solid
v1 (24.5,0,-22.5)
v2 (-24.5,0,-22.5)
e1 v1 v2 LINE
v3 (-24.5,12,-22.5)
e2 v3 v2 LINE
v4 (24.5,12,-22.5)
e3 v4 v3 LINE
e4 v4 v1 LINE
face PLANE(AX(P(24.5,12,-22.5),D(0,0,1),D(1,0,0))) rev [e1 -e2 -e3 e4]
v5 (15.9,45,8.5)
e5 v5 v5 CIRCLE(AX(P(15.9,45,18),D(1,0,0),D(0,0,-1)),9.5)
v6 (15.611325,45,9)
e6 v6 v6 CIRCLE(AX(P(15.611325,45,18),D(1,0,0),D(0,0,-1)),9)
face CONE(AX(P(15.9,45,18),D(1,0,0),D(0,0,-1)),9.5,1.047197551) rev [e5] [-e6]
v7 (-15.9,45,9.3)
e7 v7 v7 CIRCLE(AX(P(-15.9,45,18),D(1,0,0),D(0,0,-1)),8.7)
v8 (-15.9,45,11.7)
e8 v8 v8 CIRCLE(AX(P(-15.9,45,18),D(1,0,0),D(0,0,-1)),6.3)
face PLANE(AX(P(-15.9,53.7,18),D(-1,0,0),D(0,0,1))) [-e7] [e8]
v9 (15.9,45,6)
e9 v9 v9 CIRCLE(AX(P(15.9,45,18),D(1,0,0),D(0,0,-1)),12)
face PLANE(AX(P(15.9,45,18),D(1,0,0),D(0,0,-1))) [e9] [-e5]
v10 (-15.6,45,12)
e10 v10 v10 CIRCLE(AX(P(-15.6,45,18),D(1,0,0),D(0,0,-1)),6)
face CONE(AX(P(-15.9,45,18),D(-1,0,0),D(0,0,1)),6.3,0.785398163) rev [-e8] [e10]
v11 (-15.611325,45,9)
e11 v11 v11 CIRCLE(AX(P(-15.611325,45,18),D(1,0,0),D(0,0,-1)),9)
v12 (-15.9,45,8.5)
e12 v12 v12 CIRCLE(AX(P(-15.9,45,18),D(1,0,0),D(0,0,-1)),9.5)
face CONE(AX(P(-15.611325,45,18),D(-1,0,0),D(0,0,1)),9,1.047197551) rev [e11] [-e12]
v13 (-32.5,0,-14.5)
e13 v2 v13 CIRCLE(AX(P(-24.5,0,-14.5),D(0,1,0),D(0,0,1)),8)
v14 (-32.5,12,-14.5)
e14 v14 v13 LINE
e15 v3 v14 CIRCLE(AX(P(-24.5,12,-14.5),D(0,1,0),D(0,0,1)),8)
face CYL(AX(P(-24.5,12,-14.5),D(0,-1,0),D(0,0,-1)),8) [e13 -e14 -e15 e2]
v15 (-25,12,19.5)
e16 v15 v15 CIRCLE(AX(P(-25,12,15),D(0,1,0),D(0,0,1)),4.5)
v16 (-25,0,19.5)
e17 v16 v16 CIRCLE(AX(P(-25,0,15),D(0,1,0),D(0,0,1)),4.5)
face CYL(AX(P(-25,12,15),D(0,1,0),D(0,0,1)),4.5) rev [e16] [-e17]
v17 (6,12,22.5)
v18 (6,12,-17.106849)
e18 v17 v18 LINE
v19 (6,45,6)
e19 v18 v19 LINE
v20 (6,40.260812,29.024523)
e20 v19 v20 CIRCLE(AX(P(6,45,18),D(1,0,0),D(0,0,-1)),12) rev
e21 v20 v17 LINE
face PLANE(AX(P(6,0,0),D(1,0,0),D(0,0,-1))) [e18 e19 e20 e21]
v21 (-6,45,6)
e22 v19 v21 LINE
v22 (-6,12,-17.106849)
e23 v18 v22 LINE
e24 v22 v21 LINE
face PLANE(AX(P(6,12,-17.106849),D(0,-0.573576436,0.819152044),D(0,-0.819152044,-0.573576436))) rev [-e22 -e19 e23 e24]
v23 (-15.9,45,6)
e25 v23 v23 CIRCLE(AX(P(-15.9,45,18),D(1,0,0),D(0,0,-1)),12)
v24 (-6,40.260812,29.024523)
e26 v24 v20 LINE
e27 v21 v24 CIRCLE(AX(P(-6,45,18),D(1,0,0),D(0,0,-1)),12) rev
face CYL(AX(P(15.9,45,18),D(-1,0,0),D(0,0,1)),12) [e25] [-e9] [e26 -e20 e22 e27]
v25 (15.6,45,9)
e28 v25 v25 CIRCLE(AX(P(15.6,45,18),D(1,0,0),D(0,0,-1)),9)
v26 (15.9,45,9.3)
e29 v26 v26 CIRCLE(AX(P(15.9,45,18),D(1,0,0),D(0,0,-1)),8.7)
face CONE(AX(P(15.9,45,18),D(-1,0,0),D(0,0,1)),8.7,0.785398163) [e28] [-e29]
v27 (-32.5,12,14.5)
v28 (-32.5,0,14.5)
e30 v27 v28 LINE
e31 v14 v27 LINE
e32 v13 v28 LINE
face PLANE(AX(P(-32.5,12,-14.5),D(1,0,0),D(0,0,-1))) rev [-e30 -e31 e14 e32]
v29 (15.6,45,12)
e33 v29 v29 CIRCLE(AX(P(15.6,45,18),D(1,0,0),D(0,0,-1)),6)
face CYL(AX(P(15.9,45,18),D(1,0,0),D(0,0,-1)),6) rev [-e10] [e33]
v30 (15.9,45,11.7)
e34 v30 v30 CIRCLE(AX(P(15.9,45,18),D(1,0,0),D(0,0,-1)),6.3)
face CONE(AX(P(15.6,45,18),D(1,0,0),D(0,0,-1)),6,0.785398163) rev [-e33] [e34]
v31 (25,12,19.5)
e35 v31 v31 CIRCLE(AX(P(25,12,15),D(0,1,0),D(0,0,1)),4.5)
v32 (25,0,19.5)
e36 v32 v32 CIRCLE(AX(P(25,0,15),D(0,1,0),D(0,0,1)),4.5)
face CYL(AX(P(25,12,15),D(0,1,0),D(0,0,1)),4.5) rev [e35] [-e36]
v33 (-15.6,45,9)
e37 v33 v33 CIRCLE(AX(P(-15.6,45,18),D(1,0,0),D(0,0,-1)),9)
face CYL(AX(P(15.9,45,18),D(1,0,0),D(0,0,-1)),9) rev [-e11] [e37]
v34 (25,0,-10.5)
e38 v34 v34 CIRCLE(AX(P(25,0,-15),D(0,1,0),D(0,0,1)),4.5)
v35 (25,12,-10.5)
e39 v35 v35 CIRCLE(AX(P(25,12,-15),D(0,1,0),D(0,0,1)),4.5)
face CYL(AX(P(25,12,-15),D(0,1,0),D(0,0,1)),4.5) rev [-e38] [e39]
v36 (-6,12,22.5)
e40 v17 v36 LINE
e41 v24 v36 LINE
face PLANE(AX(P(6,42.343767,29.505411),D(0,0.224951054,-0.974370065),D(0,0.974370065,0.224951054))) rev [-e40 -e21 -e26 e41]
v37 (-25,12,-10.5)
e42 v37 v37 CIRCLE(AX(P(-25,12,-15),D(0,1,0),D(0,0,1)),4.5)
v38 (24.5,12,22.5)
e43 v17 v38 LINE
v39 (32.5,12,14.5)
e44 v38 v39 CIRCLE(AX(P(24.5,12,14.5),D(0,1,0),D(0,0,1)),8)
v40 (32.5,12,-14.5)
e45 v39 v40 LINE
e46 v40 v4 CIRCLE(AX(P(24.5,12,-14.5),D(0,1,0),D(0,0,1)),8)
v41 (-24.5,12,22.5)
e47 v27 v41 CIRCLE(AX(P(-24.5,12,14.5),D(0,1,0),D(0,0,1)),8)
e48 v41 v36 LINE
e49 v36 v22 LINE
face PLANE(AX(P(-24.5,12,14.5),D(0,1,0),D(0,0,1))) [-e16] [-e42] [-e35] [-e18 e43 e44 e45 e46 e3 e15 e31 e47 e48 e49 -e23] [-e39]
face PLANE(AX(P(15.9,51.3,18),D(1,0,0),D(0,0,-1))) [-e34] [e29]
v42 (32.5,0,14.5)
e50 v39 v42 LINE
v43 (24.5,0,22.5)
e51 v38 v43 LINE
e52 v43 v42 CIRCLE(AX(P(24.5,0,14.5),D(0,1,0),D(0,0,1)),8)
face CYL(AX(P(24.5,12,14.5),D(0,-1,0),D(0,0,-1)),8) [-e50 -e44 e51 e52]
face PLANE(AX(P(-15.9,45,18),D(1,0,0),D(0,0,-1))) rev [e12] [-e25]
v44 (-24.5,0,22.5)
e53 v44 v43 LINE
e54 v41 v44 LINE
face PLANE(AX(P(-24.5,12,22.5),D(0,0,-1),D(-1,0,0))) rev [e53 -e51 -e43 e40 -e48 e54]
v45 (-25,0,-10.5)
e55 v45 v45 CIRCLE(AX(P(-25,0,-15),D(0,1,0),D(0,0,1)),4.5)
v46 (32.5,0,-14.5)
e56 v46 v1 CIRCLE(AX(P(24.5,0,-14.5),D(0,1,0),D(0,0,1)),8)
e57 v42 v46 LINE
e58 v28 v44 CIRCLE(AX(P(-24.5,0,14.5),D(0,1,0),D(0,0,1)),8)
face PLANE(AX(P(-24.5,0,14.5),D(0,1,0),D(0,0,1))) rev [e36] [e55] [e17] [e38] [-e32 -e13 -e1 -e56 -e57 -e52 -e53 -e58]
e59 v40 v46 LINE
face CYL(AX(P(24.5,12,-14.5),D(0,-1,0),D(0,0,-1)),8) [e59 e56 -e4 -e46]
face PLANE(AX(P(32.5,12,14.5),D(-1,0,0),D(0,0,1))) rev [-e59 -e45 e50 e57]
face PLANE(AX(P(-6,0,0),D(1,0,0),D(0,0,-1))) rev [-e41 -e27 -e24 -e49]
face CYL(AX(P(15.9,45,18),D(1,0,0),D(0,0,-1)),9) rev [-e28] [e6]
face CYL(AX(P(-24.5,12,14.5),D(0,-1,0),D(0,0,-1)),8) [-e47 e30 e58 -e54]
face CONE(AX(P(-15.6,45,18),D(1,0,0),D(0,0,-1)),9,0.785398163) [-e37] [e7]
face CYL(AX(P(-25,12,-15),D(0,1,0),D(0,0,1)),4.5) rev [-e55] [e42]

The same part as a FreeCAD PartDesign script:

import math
import FreeCAD as App
import Part
import Sketcher

V = App.Vector
Q = App.Units.Quantity


def add_polygon(sketch, points):
    """Adds a closed chain of lines whose ends are joined by coincident constraints."""
    first, n = sketch.GeometryCount, len(points)
    for a, b in zip(points, points[1:] + points[:1]):
        sketch.addGeometry(Part.LineSegment(App.Vector(*a, 0), App.Vector(*b, 0)), False)
    for i in range(n):
        sketch.addConstraint(Sketcher.Constraint("Coincident", first + i, 2, first + (i + 1) % n, 1))

doc = App.newDocument("Part")
body = doc.addObject("PartDesign::Body", "Body")

# Sketch on XZ plane
sketch1 = body.newObject("Sketcher::SketchObject", "Sketch")
sketch1.AttachmentSupport = (doc.getObject("XZ_Plane"), [""])
sketch1.MapMode = "FlatFace"
sketch1.addGeometry(Part.LineSegment(V(-24.5, 22.5, 0), V(24.5, 22.5, 0)), False)
sketch1.addGeometry(Part.ArcOfCircle(Part.Circle(V(24.5, 14.5, 0), V(0, 0, 1), 8), math.radians(0), math.radians(90)), False)
sketch1.addGeometry(Part.LineSegment(V(32.5, 14.5, 0), V(32.5, -14.5, 0)), False)
sketch1.addGeometry(Part.ArcOfCircle(Part.Circle(V(24.5, -14.5, 0), V(0, 0, 1), 8), math.radians(-90), math.radians(0)), False)
sketch1.addGeometry(Part.LineSegment(V(24.5, -22.5, 0), V(-24.5, -22.5, 0)), False)
sketch1.addGeometry(Part.ArcOfCircle(Part.Circle(V(-24.5, -14.5, 0), V(0, 0, 1), 8), math.radians(-180), math.radians(-90)), False)
sketch1.addGeometry(Part.LineSegment(V(-32.5, -14.5, 0), V(-32.5, 14.5, 0)), False)
sketch1.addGeometry(Part.ArcOfCircle(Part.Circle(V(-24.5, 14.5, 0), V(0, 0, 1), 8), math.radians(90), math.radians(180)), False)
sketch1.addConstraint(Sketcher.Constraint("Tangent", 0, 2, 1, 2))
sketch1.addConstraint(Sketcher.Constraint("Tangent", 1, 1, 2, 1))
sketch1.addConstraint(Sketcher.Constraint("Tangent", 2, 2, 3, 2))
sketch1.addConstraint(Sketcher.Constraint("Tangent", 3, 1, 4, 1))
sketch1.addConstraint(Sketcher.Constraint("Tangent", 4, 2, 5, 2))
sketch1.addConstraint(Sketcher.Constraint("Tangent", 5, 1, 6, 1))
sketch1.addConstraint(Sketcher.Constraint("Tangent", 6, 2, 7, 2))
sketch1.addConstraint(Sketcher.Constraint("Tangent", 7, 1, 0, 1))
sketch1.addConstraint(Sketcher.Constraint("Horizontal", 0))
sketch1.addConstraint(Sketcher.Constraint("Vertical", 2))
sketch1.addConstraint(Sketcher.Constraint("Horizontal", 4))
sketch1.addConstraint(Sketcher.Constraint("Vertical", 6))
sketch1.addConstraint(Sketcher.Constraint("Equal", 1, 3))
sketch1.addConstraint(Sketcher.Constraint("Equal", 3, 5))
sketch1.addConstraint(Sketcher.Constraint("Equal", 5, 7))
sketch1.addConstraint(Sketcher.Constraint("Symmetric", 1, 3, 5, 3, -1, 1))
sketch1.addConstraint(Sketcher.Constraint("Radius", 1, Q("8 mm")))
sketch1.addConstraint(Sketcher.Constraint("DistanceX", 0, 1, 0, 2, Q("49 mm")))
sketch1.addConstraint(Sketcher.Constraint("DistanceY", 2, 2, 2, 1, Q("29 mm")))
pad1 = body.newObject("PartDesign::Pad", "Pad")
pad1.Profile = sketch1
pad1.Length = 12
pad1.Reversed = True

# Sketch on YZ plane
sketch2 = body.newObject("Sketcher::SketchObject", "Sketch001")
sketch2.AttachmentSupport = (doc.getObject("YZ_Plane"), [""])
sketch2.MapMode = "FlatFace"
add_polygon(sketch2, [(42.343767, 29.505411), (12, 22.5), (12, -17.106849), (47.384888, 7.669916)])  # lines 0-3
sketch2.addConstraint(Sketcher.Constraint("Vertical", 1))
sketch2.addConstraint(Sketcher.Constraint("Perpendicular", 0, 3))
sketch2.addConstraint(Sketcher.Constraint("Angle", 0, Q("-167 deg")))
sketch2.addConstraint(Sketcher.Constraint("Angle", 2, Q("35 deg")))
sketch2.addConstraint(Sketcher.Constraint("DistanceX", -1, 1, 0, 2, Q("12 mm")))
sketch2.addConstraint(Sketcher.Constraint("DistanceY", -1, 1, 0, 2, Q("22.5 mm")))
sketch2.addConstraint(Sketcher.Constraint("DistanceY", 1, 2, 1, 1, Q("39.606849 mm")))
sketch2.addConstraint(Sketcher.Constraint("Distance", 2, Q("43.196972 mm")))
pad2 = body.newObject("PartDesign::Pad", "Pad001")
pad2.Profile = sketch2
pad2.Type = "TwoLengths"
pad2.Length = 6
pad2.Length2 = 6

# Sketch on YZ plane
sketch3 = body.newObject("Sketcher::SketchObject", "Sketch002")
sketch3.AttachmentSupport = (doc.getObject("YZ_Plane"), [""])
sketch3.MapMode = "FlatFace"
sketch3.addGeometry(Part.Circle(V(45, 18, 0), V(0, 0, 1), 12), False)
sketch3.addConstraint(Sketcher.Constraint("Diameter", 0, Q("24 mm")))
sketch3.addConstraint(Sketcher.Constraint("DistanceX", -1, 1, 0, 3, Q("45 mm")))
sketch3.addConstraint(Sketcher.Constraint("DistanceY", -1, 1, 0, 3, Q("18 mm")))
pad3 = body.newObject("PartDesign::Pad", "Pad002")
pad3.Profile = sketch3
pad3.Type = "TwoLengths"
pad3.Length = 15.9
pad3.Length2 = 15.9

# Sketch on XY plane
sketch4 = body.newObject("Sketcher::SketchObject", "Sketch003")
sketch4.AttachmentSupport = (doc.getObject("XY_Plane"), [""])
sketch4.MapMode = "FlatFace"
sketch4.AttachmentOffset = App.Placement(V(0, 0, 15), App.Rotation())
add_polygon(sketch4, [(-29.5, 12), (-29.5, 0), (-25, 0), (-25, 12)])  # lines 0-3
sketch4.addGeometry(Part.LineSegment(V(-25, 12, 0), V(-25, 0, 0)), True)  # axis
sketch4.addConstraint(Sketcher.Constraint("Vertical", 0))
sketch4.addConstraint(Sketcher.Constraint("Horizontal", 1))
sketch4.addConstraint(Sketcher.Constraint("Vertical", 2))
sketch4.addConstraint(Sketcher.Constraint("Horizontal", 3))
sketch4.addConstraint(Sketcher.Constraint("Vertical", 4))
sketch4.addConstraint(Sketcher.Constraint("Coincident", 4, 1, 2, 2))
sketch4.addConstraint(Sketcher.Constraint("PointOnObject", 0, 2, -1))
sketch4.addConstraint(Sketcher.Constraint("PointOnObject", 4, 2, -1))
sketch4.addConstraint(Sketcher.Constraint("DistanceY", 0, 2, 0, 1, Q("12 mm")))
sketch4.addConstraint(Sketcher.Constraint("DistanceX", 1, 1, 1, 2, Q("4.5 mm")))
sketch4.addConstraint(Sketcher.Constraint("DistanceX", 1, 2, -1, 1, Q("25 mm")))
groove = body.newObject("PartDesign::Groove", "Groove")
groove.Profile = sketch4
groove.ReferenceAxis = (sketch4, ["Axis0"])
groove.Angle = 360

# Sketch on XY plane
sketch5 = body.newObject("Sketcher::SketchObject", "Sketch004")
sketch5.AttachmentSupport = (doc.getObject("XY_Plane"), [""])
sketch5.MapMode = "FlatFace"
sketch5.AttachmentOffset = App.Placement(V(0, 0, 15), App.Rotation())
add_polygon(sketch5, [(20.5, 12), (20.5, 0), (25, 0), (25, 12)])  # lines 0-3
sketch5.addGeometry(Part.LineSegment(V(25, 12, 0), V(25, 0, 0)), True)  # axis
sketch5.addConstraint(Sketcher.Constraint("Vertical", 0))
sketch5.addConstraint(Sketcher.Constraint("Horizontal", 1))
sketch5.addConstraint(Sketcher.Constraint("Vertical", 2))
sketch5.addConstraint(Sketcher.Constraint("Horizontal", 3))
sketch5.addConstraint(Sketcher.Constraint("Vertical", 4))
sketch5.addConstraint(Sketcher.Constraint("Coincident", 4, 1, 2, 2))
sketch5.addConstraint(Sketcher.Constraint("PointOnObject", 0, 2, -1))
sketch5.addConstraint(Sketcher.Constraint("PointOnObject", 4, 2, -1))
sketch5.addConstraint(Sketcher.Constraint("DistanceY", 0, 2, 0, 1, Q("12 mm")))
sketch5.addConstraint(Sketcher.Constraint("DistanceX", 1, 1, 1, 2, Q("4.5 mm")))
sketch5.addConstraint(Sketcher.Constraint("DistanceX", -1, 1, 1, 2, Q("25 mm")))
groove2 = body.newObject("PartDesign::Groove", "Groove001")
groove2.Profile = sketch5
groove2.ReferenceAxis = (sketch5, ["Axis0"])
groove2.Angle = 360

# Sketch on XY plane
sketch6 = body.newObject("Sketcher::SketchObject", "Sketch005")
sketch6.AttachmentSupport = (doc.getObject("XY_Plane"), [""])
sketch6.MapMode = "FlatFace"
sketch6.AttachmentOffset = App.Placement(V(0, 0, -15), App.Rotation())
add_polygon(sketch6, [(-29.5, 12), (-29.5, 0), (-25, 0), (-25, 12)])  # lines 0-3
sketch6.addGeometry(Part.LineSegment(V(-25, 12, 0), V(-25, 0, 0)), True)  # axis
sketch6.addConstraint(Sketcher.Constraint("Vertical", 0))
sketch6.addConstraint(Sketcher.Constraint("Horizontal", 1))
sketch6.addConstraint(Sketcher.Constraint("Vertical", 2))
sketch6.addConstraint(Sketcher.Constraint("Horizontal", 3))
sketch6.addConstraint(Sketcher.Constraint("Vertical", 4))
sketch6.addConstraint(Sketcher.Constraint("Coincident", 4, 1, 2, 2))
sketch6.addConstraint(Sketcher.Constraint("PointOnObject", 0, 2, -1))
sketch6.addConstraint(Sketcher.Constraint("PointOnObject", 4, 2, -1))
sketch6.addConstraint(Sketcher.Constraint("DistanceY", 0, 2, 0, 1, Q("12 mm")))
sketch6.addConstraint(Sketcher.Constraint("DistanceX", 1, 1, 1, 2, Q("4.5 mm")))
sketch6.addConstraint(Sketcher.Constraint("DistanceX", 1, 2, -1, 1, Q("25 mm")))
groove3 = body.newObject("PartDesign::Groove", "Groove002")
groove3.Profile = sketch6
groove3.ReferenceAxis = (sketch6, ["Axis0"])
groove3.Angle = 360

# Sketch on XY plane
sketch7 = body.newObject("Sketcher::SketchObject", "Sketch006")
sketch7.AttachmentSupport = (doc.getObject("XY_Plane"), [""])
sketch7.MapMode = "FlatFace"
sketch7.AttachmentOffset = App.Placement(V(0, 0, -15), App.Rotation())
add_polygon(sketch7, [(20.5, 12), (20.5, 0), (25, 0), (25, 12)])  # lines 0-3
sketch7.addGeometry(Part.LineSegment(V(25, 12, 0), V(25, 0, 0)), True)  # axis
sketch7.addConstraint(Sketcher.Constraint("Vertical", 0))
sketch7.addConstraint(Sketcher.Constraint("Horizontal", 1))
sketch7.addConstraint(Sketcher.Constraint("Vertical", 2))
sketch7.addConstraint(Sketcher.Constraint("Horizontal", 3))
sketch7.addConstraint(Sketcher.Constraint("Vertical", 4))
sketch7.addConstraint(Sketcher.Constraint("Coincident", 4, 1, 2, 2))
sketch7.addConstraint(Sketcher.Constraint("PointOnObject", 0, 2, -1))
sketch7.addConstraint(Sketcher.Constraint("PointOnObject", 4, 2, -1))
sketch7.addConstraint(Sketcher.Constraint("DistanceY", 0, 2, 0, 1, Q("12 mm")))
sketch7.addConstraint(Sketcher.Constraint("DistanceX", 1, 1, 1, 2, Q("4.5 mm")))
sketch7.addConstraint(Sketcher.Constraint("DistanceX", -1, 1, 1, 2, Q("25 mm")))
groove4 = body.newObject("PartDesign::Groove", "Groove003")
groove4.Profile = sketch7
groove4.ReferenceAxis = (sketch7, ["Axis0"])
groove4.Angle = 360

# Sketch on XY plane
sketch8 = body.newObject("Sketcher::SketchObject", "Sketch007")
sketch8.AttachmentSupport = (doc.getObject("XY_Plane"), [""])
sketch8.MapMode = "FlatFace"
sketch8.AttachmentOffset = App.Placement(V(0, 0, 18), App.Rotation())
add_polygon(sketch8, [(-15.9, 54.5), (-15.9, 45), (15.9, 45), (15.9, 54.5), (15.611325, 54), (-15.611325, 54)])  # lines 0-5
sketch8.addGeometry(Part.LineSegment(V(15.9, 45, 0), V(-15.9, 45, 0)), True)  # axis
sketch8.addConstraint(Sketcher.Constraint("Vertical", 0))
sketch8.addConstraint(Sketcher.Constraint("Horizontal", 1))
sketch8.addConstraint(Sketcher.Constraint("Vertical", 2))
sketch8.addConstraint(Sketcher.Constraint("Horizontal", 4))
sketch8.addConstraint(Sketcher.Constraint("Horizontal", 6))
sketch8.addConstraint(Sketcher.Constraint("Coincident", 6, 1, 1, 2))
sketch8.addConstraint(Sketcher.Constraint("Symmetric", 2, 2, 5, 2, -2))
sketch8.addConstraint(Sketcher.Constraint("Vertical", 5, 2, 6, 2))
sketch8.addConstraint(Sketcher.Constraint("Equal", 3, 5))
sketch8.addConstraint(Sketcher.Constraint("Angle", 3, Q("-120 deg")))
sketch8.addConstraint(Sketcher.Constraint("DistanceX", 1, 1, 1, 2, Q("31.8 mm")))
sketch8.addConstraint(Sketcher.Constraint("DistanceY", 0, 2, 0, 1, Q("9.5 mm")))
sketch8.addConstraint(Sketcher.Constraint("DistanceY", -1, 1, 0, 2, Q("45 mm")))
sketch8.addConstraint(Sketcher.Constraint("DistanceY", -1, 1, 3, 2, Q("54 mm")))
groove5 = body.newObject("PartDesign::Groove", "Groove004")
groove5.Profile = sketch8
groove5.ReferenceAxis = (sketch8, ["Axis0"])
groove5.Angle = 360

# Sketch on XY plane
sketch9 = body.newObject("Sketcher::SketchObject", "Sketch008")
sketch9.AttachmentSupport = (doc.getObject("XY_Plane"), [""])
sketch9.MapMode = "FlatFace"
sketch9.AttachmentOffset = App.Placement(V(0, 0, 18), App.Rotation())
add_polygon(sketch9, [(-15.9, 51.3), (-15.6, 51), (15.6, 51), (15.9, 51.3), (15.9, 53.7), (15.6, 54), (-15.6, 54), (-15.9, 53.7)])  # lines 0-7
sketch9.addGeometry(Part.LineSegment(V(15.9, 45, 0), V(-15.9, 45, 0)), True)  # axis
sketch9.addConstraint(Sketcher.Constraint("Horizontal", 1))
sketch9.addConstraint(Sketcher.Constraint("Vertical", 3))
sketch9.addConstraint(Sketcher.Constraint("Horizontal", 5))
sketch9.addConstraint(Sketcher.Constraint("Vertical", 7))
sketch9.addConstraint(Sketcher.Constraint("Horizontal", 8))
sketch9.addConstraint(Sketcher.Constraint("Symmetric", 3, 2, 6, 2, -2))
sketch9.addConstraint(Sketcher.Constraint("Perpendicular", 0, 2))
sketch9.addConstraint(Sketcher.Constraint("Perpendicular", 2, 4))
sketch9.addConstraint(Sketcher.Constraint("Perpendicular", 4, 6))
sketch9.addConstraint(Sketcher.Constraint("Horizontal", 2, 2, 7, 2))
sketch9.addConstraint(Sketcher.Constraint("Vertical", 1, 2, 4, 2))
sketch9.addConstraint(Sketcher.Constraint("Vertical", 0, 2, 5, 2))
sketch9.addConstraint(Sketcher.Constraint("Vertical", 3, 2, 8, 1))
sketch9.addConstraint(Sketcher.Constraint("Vertical", 7, 2, 8, 2))
sketch9.addConstraint(Sketcher.Constraint("DistanceX", 1, 1, 1, 2, Q("31.2 mm")))
sketch9.addConstraint(Sketcher.Constraint("DistanceX", 8, 2, 8, 1, Q("31.8 mm")))
sketch9.addConstraint(Sketcher.Constraint("DistanceY", 3, 1, 3, 2, Q("2.4 mm")))
sketch9.addConstraint(Sketcher.Constraint("DistanceY", -1, 1, 0, 2, Q("51 mm")))
sketch9.addConstraint(Sketcher.Constraint("DistanceY", -1, 1, 8, 1, Q("45 mm")))
revolution = body.newObject("PartDesign::Revolution", "Revolution")
revolution.Profile = sketch9
revolution.ReferenceAxis = (sketch9, ["Axis0"])
revolution.Angle = 360

doc.recompute()
